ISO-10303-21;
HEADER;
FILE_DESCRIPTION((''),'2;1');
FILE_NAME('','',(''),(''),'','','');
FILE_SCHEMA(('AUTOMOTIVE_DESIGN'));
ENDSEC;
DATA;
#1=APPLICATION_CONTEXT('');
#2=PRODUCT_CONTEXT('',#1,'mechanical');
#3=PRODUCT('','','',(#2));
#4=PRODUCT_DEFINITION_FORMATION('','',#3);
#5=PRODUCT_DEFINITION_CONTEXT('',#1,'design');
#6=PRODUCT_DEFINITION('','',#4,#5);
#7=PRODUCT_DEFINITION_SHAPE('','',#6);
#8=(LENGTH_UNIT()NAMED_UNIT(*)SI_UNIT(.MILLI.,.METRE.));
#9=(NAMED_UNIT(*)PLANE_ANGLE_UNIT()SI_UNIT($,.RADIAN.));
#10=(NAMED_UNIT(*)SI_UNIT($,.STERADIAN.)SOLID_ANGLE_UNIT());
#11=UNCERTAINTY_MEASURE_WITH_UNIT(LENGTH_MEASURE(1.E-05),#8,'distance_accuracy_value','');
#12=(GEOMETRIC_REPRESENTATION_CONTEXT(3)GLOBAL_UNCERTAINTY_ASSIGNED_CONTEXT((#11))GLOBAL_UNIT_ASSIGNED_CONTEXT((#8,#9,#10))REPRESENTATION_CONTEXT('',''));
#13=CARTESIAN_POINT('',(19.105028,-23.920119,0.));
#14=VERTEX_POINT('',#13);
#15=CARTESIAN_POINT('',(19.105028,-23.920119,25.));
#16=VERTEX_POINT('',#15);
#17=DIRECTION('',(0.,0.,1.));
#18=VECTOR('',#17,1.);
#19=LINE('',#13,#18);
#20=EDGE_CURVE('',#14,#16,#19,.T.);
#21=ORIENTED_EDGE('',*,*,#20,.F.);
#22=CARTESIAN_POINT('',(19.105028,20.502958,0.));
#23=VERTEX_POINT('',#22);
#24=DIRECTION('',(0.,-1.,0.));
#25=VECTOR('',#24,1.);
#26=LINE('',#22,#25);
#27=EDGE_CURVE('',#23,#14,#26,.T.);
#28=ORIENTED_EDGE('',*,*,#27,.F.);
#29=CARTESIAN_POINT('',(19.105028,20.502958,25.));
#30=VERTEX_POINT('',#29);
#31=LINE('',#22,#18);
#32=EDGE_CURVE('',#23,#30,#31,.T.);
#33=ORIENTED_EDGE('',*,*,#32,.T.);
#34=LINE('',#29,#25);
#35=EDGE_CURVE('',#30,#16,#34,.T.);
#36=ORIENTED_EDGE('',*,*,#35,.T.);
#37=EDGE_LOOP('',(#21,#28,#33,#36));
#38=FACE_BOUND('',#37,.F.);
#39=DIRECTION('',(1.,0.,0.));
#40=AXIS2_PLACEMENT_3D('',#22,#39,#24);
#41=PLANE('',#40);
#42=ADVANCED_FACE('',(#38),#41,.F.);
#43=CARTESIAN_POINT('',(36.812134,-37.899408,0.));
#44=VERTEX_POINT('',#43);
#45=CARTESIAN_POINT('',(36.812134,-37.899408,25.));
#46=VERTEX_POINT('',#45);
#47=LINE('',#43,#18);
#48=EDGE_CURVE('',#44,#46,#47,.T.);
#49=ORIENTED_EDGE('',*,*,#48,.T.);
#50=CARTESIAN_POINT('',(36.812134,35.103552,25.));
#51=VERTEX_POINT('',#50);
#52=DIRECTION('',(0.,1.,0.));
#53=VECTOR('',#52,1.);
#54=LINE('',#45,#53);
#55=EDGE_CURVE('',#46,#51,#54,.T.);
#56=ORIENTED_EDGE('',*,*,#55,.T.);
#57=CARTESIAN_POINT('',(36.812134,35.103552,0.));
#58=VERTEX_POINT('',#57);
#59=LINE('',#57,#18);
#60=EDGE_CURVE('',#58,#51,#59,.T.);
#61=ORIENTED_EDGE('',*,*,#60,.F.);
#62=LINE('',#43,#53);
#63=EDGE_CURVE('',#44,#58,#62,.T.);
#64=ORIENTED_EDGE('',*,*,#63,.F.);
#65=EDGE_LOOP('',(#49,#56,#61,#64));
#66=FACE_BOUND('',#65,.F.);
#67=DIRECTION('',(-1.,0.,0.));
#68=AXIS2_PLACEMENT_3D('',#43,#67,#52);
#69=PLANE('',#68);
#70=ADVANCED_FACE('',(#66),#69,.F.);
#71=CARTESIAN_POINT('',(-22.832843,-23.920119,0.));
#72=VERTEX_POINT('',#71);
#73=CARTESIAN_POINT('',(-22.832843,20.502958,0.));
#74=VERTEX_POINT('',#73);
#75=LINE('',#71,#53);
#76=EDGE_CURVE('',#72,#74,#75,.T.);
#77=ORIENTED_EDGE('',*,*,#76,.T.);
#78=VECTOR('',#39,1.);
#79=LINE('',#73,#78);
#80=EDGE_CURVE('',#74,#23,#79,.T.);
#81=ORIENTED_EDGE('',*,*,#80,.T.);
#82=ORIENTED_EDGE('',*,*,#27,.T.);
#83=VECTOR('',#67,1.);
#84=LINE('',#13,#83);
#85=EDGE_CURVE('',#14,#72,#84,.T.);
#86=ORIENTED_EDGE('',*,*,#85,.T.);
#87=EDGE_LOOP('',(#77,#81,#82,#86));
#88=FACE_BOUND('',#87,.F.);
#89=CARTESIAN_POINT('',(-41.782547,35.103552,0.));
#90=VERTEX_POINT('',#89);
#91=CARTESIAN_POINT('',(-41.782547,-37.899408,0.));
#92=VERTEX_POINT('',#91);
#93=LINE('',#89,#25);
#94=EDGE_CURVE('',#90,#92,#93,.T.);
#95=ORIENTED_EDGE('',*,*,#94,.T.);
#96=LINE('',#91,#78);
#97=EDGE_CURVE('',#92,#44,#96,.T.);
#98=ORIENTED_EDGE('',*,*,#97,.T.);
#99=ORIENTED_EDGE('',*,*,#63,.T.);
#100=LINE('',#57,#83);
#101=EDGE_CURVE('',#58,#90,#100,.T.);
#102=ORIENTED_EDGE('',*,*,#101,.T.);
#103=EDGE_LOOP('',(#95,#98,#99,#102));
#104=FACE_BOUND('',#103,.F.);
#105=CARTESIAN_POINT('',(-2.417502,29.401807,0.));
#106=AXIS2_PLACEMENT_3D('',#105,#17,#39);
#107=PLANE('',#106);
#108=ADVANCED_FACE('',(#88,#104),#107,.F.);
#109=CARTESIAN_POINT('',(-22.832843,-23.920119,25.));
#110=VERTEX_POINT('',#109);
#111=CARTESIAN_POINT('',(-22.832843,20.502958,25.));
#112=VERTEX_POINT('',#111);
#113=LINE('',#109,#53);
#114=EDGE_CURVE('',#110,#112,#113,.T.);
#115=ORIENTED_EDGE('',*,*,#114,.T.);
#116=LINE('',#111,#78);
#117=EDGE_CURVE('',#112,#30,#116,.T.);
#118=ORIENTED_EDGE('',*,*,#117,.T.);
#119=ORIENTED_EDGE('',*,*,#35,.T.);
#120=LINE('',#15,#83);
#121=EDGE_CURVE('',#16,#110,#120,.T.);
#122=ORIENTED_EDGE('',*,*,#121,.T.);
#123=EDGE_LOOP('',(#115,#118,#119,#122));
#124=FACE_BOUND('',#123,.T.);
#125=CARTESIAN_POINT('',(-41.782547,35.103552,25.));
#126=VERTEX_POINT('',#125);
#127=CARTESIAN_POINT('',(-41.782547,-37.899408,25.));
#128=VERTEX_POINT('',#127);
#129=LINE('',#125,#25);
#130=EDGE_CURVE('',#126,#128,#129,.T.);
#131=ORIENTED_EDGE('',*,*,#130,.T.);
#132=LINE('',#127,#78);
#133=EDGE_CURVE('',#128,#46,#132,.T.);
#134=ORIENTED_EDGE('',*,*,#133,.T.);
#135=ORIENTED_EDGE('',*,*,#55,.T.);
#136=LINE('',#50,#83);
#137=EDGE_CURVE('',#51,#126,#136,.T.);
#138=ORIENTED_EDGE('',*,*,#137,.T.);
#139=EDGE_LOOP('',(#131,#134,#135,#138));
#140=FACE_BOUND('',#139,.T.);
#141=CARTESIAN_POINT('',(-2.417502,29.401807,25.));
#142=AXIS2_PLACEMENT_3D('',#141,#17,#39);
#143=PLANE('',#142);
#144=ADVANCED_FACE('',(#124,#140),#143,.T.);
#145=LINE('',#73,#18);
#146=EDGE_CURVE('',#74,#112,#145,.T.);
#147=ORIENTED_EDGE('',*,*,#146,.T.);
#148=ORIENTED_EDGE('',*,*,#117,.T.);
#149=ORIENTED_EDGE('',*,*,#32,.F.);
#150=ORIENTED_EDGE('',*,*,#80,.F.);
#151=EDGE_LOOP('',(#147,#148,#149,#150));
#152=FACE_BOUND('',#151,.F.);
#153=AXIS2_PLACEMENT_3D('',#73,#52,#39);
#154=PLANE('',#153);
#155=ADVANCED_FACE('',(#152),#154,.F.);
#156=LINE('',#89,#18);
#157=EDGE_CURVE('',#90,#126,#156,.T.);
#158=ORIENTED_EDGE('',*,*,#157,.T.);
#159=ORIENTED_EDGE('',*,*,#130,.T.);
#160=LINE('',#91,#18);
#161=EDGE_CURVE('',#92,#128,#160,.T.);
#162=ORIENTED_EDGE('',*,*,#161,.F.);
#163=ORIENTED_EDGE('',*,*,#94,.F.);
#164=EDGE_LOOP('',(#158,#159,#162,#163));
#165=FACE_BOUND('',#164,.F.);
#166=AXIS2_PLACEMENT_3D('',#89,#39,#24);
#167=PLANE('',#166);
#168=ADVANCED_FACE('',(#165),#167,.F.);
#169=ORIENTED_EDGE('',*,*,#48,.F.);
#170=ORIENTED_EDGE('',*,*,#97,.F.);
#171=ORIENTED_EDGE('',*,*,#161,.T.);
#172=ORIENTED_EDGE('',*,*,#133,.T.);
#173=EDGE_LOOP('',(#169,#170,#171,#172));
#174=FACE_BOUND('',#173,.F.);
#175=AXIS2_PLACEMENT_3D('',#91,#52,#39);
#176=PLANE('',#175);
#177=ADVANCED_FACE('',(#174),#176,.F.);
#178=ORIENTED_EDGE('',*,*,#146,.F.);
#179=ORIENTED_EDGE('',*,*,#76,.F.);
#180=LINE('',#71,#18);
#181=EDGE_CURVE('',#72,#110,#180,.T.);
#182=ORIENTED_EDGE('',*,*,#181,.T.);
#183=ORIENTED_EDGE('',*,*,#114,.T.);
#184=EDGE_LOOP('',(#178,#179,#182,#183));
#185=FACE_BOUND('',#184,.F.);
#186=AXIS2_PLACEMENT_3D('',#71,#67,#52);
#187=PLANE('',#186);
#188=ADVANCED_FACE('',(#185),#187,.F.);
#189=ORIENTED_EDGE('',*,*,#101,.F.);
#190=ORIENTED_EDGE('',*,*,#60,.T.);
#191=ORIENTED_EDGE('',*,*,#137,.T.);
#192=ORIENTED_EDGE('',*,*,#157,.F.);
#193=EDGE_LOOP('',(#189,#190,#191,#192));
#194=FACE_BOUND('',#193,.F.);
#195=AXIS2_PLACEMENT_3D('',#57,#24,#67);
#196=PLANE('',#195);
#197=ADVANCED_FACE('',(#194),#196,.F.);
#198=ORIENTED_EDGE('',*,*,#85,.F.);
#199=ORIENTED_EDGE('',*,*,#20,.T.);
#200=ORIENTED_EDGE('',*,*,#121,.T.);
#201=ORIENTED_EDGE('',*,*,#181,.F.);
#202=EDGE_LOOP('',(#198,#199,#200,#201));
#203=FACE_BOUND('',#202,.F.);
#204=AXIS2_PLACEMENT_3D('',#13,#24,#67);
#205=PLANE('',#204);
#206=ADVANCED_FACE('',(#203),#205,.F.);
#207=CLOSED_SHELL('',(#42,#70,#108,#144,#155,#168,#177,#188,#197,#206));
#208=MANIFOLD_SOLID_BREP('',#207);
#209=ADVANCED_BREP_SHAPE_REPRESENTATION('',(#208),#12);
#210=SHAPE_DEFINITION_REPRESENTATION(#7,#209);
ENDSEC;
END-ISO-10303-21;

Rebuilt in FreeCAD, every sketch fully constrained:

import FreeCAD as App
import Part
import Sketcher
from FreeCAD import Vector
Q = App.Units.Quantity


def add_polygon(sketch, points):
    """Adds a closed chain of lines whose ends are joined by coincident constraints."""
    first, n = sketch.GeometryCount, len(points)
    for a, b in zip(points, points[1:] + points[:1]):
        sketch.addGeometry(Part.LineSegment(App.Vector(*a, 0), App.Vector(*b, 0)), False)
    for i in range(n):
        sketch.addConstraint(Sketcher.Constraint("Coincident", first + i, 2, first + (i + 1) % n, 1))

doc = App.newDocument("Part")
body = doc.addObject("PartDesign::Body", "Body")

sketch1 = body.newObject("Sketcher::SketchObject", "Sketch")
sketch1.AttachmentSupport = (doc.getObject("XY_Plane"), [""])
sketch1.MapMode = "FlatFace"
add_polygon(sketch1, [(36.812134, 35.103552), (-41.782547, 35.103552), (-41.782547, -37.899408), (36.812134, -37.899408)])
add_polygon(sketch1, [(-22.832843, -23.920119), (-22.832843, 20.502958), (19.105028, 20.502958), (19.105028, -23.920119)])
sketch1.addConstraint([
    Sketcher.Constraint("Horizontal", 0),
    Sketcher.Constraint("Vertical", 1),
    Sketcher.Constraint("Horizontal", 2),
    Sketcher.Constraint("Vertical", 3),
    Sketcher.Constraint("Vertical", 4),
    Sketcher.Constraint("Horizontal", 5),
    Sketcher.Constraint("Vertical", 6),
    Sketcher.Constraint("Horizontal", 7),
    Sketcher.Constraint("DistanceX", 0, 2, 0, 1, Q("78.594681 mm")),
    Sketcher.Constraint("DistanceX", 5, 1, 5, 2, Q("41.937871 mm")),
    Sketcher.Constraint("DistanceY", 1, 2, 1, 1, Q("73.00296 mm")),
    Sketcher.Constraint("DistanceY", 4, 1, 4, 2, Q("44.423077 mm")),
    Sketcher.Constraint("DistanceX", -1, 1, 5, 2, Q("19.105028 mm")),
    Sketcher.Constraint("DistanceY", 6, 2, -1, 1, Q("23.920119 mm")),
    Sketcher.Constraint("DistanceY", 2, 2, 6, 2, Q("13.979289 mm")),
    Sketcher.Constraint("DistanceX", 0, 2, -1, 1, Q("41.782547 mm")),
])
pad1 = body.newObject("PartDesign::Pad", "Pad")
pad1.Profile = sketch1
pad1.Length = 25

doc.recompute()
